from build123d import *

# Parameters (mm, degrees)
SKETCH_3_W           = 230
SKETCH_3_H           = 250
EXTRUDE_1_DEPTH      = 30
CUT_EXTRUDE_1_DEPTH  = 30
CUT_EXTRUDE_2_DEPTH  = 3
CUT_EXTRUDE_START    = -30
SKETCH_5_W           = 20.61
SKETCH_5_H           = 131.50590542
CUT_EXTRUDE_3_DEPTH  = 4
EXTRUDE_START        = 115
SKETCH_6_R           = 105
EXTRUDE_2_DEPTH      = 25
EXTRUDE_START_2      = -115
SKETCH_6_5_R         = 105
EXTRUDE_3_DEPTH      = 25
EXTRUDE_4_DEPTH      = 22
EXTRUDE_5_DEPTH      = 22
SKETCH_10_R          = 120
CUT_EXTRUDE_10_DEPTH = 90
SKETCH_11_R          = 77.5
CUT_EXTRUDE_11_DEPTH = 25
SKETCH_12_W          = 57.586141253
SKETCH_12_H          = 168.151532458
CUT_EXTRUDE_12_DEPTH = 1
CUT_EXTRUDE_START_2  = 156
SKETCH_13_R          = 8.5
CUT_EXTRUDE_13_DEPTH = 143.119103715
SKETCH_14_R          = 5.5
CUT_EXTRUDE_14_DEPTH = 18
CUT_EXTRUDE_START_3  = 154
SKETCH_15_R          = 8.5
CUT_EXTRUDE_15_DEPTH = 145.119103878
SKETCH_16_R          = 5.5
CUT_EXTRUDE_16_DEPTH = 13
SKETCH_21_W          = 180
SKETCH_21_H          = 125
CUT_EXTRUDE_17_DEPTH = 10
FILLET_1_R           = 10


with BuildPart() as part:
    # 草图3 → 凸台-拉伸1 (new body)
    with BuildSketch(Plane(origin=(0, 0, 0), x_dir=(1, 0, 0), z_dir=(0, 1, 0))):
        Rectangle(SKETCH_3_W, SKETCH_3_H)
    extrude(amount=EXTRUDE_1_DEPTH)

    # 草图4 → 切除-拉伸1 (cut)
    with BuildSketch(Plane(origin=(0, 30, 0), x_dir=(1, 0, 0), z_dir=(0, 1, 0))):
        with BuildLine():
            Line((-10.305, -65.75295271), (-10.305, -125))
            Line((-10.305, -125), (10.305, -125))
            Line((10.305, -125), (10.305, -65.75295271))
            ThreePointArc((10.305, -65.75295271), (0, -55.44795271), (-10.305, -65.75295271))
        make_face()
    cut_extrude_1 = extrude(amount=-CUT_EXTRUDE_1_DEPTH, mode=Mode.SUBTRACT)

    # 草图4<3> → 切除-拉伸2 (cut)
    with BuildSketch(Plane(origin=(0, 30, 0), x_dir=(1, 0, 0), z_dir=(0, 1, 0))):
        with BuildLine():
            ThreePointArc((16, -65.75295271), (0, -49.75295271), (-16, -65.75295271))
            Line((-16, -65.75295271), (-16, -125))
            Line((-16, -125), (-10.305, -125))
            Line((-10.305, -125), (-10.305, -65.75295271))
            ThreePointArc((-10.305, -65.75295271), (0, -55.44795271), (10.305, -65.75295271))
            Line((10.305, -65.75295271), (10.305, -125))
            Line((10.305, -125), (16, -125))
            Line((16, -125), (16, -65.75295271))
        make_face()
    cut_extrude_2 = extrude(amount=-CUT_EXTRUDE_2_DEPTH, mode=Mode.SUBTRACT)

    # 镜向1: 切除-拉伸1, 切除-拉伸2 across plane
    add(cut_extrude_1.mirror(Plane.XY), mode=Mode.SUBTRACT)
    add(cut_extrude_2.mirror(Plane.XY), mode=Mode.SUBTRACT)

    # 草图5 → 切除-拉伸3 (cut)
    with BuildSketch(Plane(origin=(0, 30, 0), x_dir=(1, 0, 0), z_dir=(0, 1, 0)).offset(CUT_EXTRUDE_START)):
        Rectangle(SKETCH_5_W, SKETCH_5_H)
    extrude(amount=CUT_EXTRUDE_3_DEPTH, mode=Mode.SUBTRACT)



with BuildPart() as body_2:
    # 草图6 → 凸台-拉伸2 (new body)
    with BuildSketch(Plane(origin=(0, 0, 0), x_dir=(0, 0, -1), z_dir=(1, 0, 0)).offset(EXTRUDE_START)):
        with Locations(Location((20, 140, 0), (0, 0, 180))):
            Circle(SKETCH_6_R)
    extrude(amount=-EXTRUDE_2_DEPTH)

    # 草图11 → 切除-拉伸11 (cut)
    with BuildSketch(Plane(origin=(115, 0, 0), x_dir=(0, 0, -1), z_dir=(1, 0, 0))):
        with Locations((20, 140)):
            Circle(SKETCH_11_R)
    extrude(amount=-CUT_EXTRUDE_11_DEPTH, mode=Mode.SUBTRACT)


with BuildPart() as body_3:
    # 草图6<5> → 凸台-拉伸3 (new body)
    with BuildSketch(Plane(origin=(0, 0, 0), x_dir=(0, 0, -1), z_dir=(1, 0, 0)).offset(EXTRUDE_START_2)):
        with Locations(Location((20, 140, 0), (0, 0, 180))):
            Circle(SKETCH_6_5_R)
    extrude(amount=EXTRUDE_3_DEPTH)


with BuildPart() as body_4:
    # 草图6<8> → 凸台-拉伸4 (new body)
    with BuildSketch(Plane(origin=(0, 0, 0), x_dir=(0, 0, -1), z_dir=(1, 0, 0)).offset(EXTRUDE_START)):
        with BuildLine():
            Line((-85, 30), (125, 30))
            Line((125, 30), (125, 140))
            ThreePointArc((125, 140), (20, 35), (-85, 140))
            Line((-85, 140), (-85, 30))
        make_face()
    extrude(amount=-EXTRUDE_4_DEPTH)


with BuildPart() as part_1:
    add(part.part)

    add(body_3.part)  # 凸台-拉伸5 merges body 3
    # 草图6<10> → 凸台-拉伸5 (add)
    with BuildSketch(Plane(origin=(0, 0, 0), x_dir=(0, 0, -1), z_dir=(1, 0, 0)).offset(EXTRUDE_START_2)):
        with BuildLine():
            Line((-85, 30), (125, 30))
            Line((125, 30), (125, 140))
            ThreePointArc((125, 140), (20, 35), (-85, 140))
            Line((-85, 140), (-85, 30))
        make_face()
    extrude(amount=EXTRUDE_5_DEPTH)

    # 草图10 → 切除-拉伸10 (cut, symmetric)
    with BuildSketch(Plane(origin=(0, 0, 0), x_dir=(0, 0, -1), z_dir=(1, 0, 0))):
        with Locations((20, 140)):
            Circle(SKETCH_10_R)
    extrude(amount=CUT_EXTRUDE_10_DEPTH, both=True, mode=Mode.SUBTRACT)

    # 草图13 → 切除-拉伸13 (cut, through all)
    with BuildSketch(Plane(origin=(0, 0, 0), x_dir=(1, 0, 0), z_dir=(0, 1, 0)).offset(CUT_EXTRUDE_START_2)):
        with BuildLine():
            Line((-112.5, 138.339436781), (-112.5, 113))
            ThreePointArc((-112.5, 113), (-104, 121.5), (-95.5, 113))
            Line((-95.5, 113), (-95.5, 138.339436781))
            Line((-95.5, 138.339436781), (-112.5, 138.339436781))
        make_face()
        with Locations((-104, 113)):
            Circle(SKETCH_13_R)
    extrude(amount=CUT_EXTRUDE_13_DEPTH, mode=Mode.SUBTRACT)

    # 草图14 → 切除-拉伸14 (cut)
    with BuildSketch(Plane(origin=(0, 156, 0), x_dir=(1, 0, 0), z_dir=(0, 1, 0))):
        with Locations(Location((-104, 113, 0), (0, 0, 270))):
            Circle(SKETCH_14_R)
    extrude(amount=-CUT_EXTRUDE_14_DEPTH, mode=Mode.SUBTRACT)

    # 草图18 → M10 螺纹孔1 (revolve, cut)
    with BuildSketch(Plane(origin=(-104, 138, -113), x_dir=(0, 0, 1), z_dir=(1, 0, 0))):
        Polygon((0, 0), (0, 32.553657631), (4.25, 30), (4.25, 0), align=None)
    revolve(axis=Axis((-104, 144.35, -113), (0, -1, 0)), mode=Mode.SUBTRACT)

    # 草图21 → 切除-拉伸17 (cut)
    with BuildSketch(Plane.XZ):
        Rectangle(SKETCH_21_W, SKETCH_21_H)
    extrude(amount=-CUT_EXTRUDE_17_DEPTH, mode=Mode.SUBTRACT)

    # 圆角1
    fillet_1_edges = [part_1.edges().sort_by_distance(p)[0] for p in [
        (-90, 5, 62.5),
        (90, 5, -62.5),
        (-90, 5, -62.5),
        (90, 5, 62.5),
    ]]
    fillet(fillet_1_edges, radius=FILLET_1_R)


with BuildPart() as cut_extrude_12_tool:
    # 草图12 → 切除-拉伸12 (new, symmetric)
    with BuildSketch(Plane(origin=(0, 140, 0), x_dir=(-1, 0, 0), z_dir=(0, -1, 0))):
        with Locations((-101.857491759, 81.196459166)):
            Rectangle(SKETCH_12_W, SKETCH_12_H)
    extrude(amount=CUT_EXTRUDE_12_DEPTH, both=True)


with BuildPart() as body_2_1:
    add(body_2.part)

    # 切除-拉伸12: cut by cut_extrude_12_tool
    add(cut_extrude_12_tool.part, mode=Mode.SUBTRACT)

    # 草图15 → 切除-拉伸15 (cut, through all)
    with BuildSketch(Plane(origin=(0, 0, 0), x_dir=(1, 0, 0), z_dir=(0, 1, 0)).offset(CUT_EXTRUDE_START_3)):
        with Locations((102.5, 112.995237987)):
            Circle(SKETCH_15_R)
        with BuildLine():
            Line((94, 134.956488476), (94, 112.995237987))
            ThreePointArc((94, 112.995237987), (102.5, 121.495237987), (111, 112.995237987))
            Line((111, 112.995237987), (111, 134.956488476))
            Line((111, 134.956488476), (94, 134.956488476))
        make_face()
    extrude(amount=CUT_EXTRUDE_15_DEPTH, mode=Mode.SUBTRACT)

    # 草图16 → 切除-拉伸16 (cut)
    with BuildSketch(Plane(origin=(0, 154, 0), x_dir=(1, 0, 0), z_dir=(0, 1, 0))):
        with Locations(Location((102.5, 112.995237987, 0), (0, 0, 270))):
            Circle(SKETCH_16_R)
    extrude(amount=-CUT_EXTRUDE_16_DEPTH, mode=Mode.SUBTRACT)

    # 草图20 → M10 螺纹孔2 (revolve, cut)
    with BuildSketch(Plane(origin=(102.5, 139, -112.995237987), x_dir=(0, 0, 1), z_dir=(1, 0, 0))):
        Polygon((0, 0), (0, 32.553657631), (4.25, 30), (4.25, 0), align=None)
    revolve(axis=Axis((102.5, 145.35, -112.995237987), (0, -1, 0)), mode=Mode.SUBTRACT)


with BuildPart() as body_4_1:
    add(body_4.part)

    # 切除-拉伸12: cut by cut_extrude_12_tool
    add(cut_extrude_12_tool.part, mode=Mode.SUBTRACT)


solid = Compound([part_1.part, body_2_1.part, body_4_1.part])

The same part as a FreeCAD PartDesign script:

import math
import FreeCAD as App
import Part
import Sketcher
Q = App.Units.Quantity


def edges_at(feature, points):
    """Names of the edges that pass closest to the given points."""
    edges = feature.Shape.Edges
    near = lambda p: min(range(len(edges)), key=lambda i: edges[i].distToShape(Part.Vertex(*p))[0])
    return sorted({f"Edge{near(p) + 1}" for p in points})

doc = App.newDocument("Part")
params = doc.addObject("Spreadsheet::Sheet", "Params")
for row, (alias, value) in enumerate([
    ("sketch1_width", "230 mm"),
    ("sketch1_height", "250 mm"),
    ("pad1_length", "30 mm"),
    ("pocket1_length", "30 mm"),
    ("sketch3_radius", "16 mm"),
    ("pocket2_length", "3 mm"),
    ("sketch4_width", "20.61 mm"),
    ("pocket3_length", "4 mm"),
    ("sketch5_diameter", "210 mm"),
    ("pad2_length", "25 mm"),
    ("sketch6_diameter", "155 mm"),
    ("pocket4_length", "25 mm"),
    ("sketch7_diameter", "210 mm"),
    ("pad3_length", "25 mm"),
    ("sketch8_radius", "105 mm"),
    ("sketch8_width", "110 mm"),
    ("pad4_length", "22 mm"),
    ("sketch9_radius", "105 mm"),
    ("sketch9_width", "110 mm"),
    ("pad5_length", "22 mm"),
    ("sketch10_diameter", "240 mm"),
    ("pocket5_length", "180 mm"),
    ("sketch11_radius", "8.5 mm"),
    ("sketch12_diameter", "11 mm"),
    ("pocket7_length", "18 mm"),
    ("sketch13_width", "30 mm"),
    ("sketch13_height", "4.25 mm"),
    ("groove_angle", "360 deg"),
    ("sketch14_width", "180 mm"),
    ("sketch14_height", "125 mm"),
    ("pocket8_length", "10 mm"),
    ("fillet_radius", "10 mm"),
    ("pad6_length", "2 mm"),
    ("sketch16_radius", "8.5 mm"),
    ("sketch17_diameter", "11 mm"),
    ("pocket10_length", "13 mm"),
    ("sketch18_width", "30 mm"),
    ("sketch18_height", "4.25 mm"),
    ("groove2_angle", "360 deg"),
], start=1):
    params.set(f"A{row}", alias)
    params.set(f"B{row}", "=" + value)
    params.setAlias(f"B{row}", alias)

body = doc.addObject("PartDesign::Body", "Body")

# Sketch on XZ plane
sketch1 = doc.addObject("Sketcher::SketchObject", "Sketch")
body.addObject(sketch1)
sketch1.AttachmentSupport = (doc.XZ_Plane, [""])
sketch1.MapMode = "FlatFace"
sketch1.addGeometry([
    Part.LineSegment(App.Vector(-115, -125, 0), App.Vector(-115, 125, 0)),
    Part.LineSegment(App.Vector(-115, 125, 0), App.Vector(115, 125, 0)),
    Part.LineSegment(App.Vector(115, 125, 0), App.Vector(115, -125, 0)),
    Part.LineSegment(App.Vector(115, -125, 0), App.Vector(-115, -125, 0)),
], False)
sketch1.addConstraint([
    Sketcher.Constraint("Coincident", 0, 2, 1, 1),
    Sketcher.Constraint("Coincident", 1, 2, 2, 1),
    Sketcher.Constraint("Coincident", 2, 2, 3, 1),
    Sketcher.Constraint("Coincident", 3, 2, 0, 1),
    Sketcher.Constraint("Vertical", 0),
    Sketcher.Constraint("Horizontal", 1),
    Sketcher.Constraint("Vertical", 2),
    Sketcher.Constraint("Horizontal", 3),
    Sketcher.Constraint("Symmetric", 0, 2, 2, 2, -1, 1),
    Sketcher.Constraint("DistanceX", 1, 1, 1, 2, 230.0),
    Sketcher.Constraint("DistanceY", 0, 1, 0, 2, 250.0),
])
sketch1.setExpression("Constraints[9]", "Params.sketch1_width")
sketch1.setExpression("Constraints[10]", "Params.sketch1_height")
pad1 = doc.addObject("PartDesign::Pad", "Pad")
body.addObject(pad1)
pad1.Profile = sketch1
pad1.setExpression("Length", "Params.pad1_length")
pad1.Reversed = True

# Sketch on XZ plane
sketch2 = doc.addObject("Sketcher::SketchObject", "Sketch001")
body.addObject(sketch2)
sketch2.AttachmentSupport = (doc.XZ_Plane, [""])
sketch2.MapMode = "FlatFace"
sketch2.AttachmentOffset = App.Placement(App.Vector(0, 0, -30), App.Rotation())
sketch2.addGeometry([
    Part.LineSegment(App.Vector(-10, 66, 0), App.Vector(-10, 125, 0)),
    Part.LineSegment(App.Vector(-10, 125, 0), App.Vector(10, 125, 0)),
    Part.LineSegment(App.Vector(10, 125, 0), App.Vector(10, 66, 0)),
    Part.ArcOfCircle(Part.Circle(App.Vector(0, 66, 0), App.Vector(0, 0, 1), 10), math.radians(180), math.radians(360)),
], False)
sketch2.addConstraint([
    Sketcher.Constraint("Coincident", 0, 2, 1, 1),
    Sketcher.Constraint("Coincident", 1, 2, 2, 1),
    Sketcher.Constraint("Tangent", 2, 2, 3, 2),
    Sketcher.Constraint("Tangent", 3, 1, 0, 1),
    Sketcher.Constraint("Vertical", 0),
    Sketcher.Constraint("Horizontal", 1),
    Sketcher.Constraint("Vertical", 2),
    Sketcher.Constraint("PointOnObject", 3, 3, -2),
    Sketcher.Constraint("DistanceY", -1, 1, 0, 2, 125.0),
    Sketcher.Constraint("Radius", 3, 10.305),
    Sketcher.Constraint("DistanceY", 0, 1, 0, 2, 59.247047),
])
pocket1 = doc.addObject("PartDesign::Pocket", "Pocket")
body.addObject(pocket1)
pocket1.Profile = sketch2
pocket1.setExpression("Length", "Params.pocket1_length")
pocket1.Reversed = True

# Sketch on XZ plane
sketch3 = doc.addObject("Sketcher::SketchObject", "Sketch002")
body.addObject(sketch3)
sketch3.AttachmentSupport = (doc.XZ_Plane, [""])
sketch3.MapMode = "FlatFace"
sketch3.AttachmentOffset = App.Placement(App.Vector(0, 0, -30), App.Rotation())
sketch3.addGeometry([
    Part.ArcOfCircle(Part.Circle(App.Vector(0, 66, 0), App.Vector(0, 0, 1), 16), math.radians(180), math.radians(360)),  # 0
    Part.LineSegment(App.Vector(-16, 66, 0), App.Vector(-16, 125, 0)),  # 1
    Part.LineSegment(App.Vector(-16, 125, 0), App.Vector(-10, 125, 0)),  # 2
    Part.LineSegment(App.Vector(-10, 125, 0), App.Vector(-10, 66, 0)),  # 3
    Part.ArcOfCircle(Part.Circle(App.Vector(0, 66, 0), App.Vector(0, 0, 1), 10), math.radians(180), math.radians(360)),  # 4
    Part.LineSegment(App.Vector(10, 66, 0), App.Vector(10, 125, 0)),  # 5
    Part.LineSegment(App.Vector(10, 125, 0), App.Vector(16, 125, 0)),  # 6
    Part.LineSegment(App.Vector(16, 125, 0), App.Vector(16, 66, 0)),  # 7
], False)
sketch3.addConstraint([
    Sketcher.Constraint("Tangent", 0, 1, 1, 1),
    Sketcher.Constraint("Coincident", 1, 2, 2, 1),
    Sketcher.Constraint("Coincident", 2, 2, 3, 1),
    Sketcher.Constraint("Tangent", 3, 2, 4, 1),
    Sketcher.Constraint("Tangent", 4, 2, 5, 1),
    Sketcher.Constraint("Coincident", 5, 2, 6, 1),
    Sketcher.Constraint("Coincident", 6, 2, 7, 1),
    Sketcher.Constraint("Tangent", 7, 2, 0, 2),
    Sketcher.Constraint("Vertical", 1),
    Sketcher.Constraint("Horizontal", 2),
    Sketcher.Constraint("Vertical", 3),
    Sketcher.Constraint("Vertical", 5),
    Sketcher.Constraint("Horizontal", 6),
    Sketcher.Constraint("Vertical", 7),
    Sketcher.Constraint("Coincident", 4, 3, 0, 3),
    Sketcher.Constraint("Symmetric", 2, 2, 5, 2, -2),
    Sketcher.Constraint("Radius", 0, 16.0),
    Sketcher.Constraint("DistanceY", -1, 1, 1, 2, 125.0),
    Sketcher.Constraint("Radius", 4, 10.305),
    Sketcher.Constraint("DistanceY", 1, 1, 1, 2, 59.247047),
])
sketch3.setExpression("Constraints[16]", "Params.sketch3_radius")
pocket2 = doc.addObject("PartDesign::Pocket", "Pocket001")
body.addObject(pocket2)
pocket2.Profile = sketch3
pocket2.setExpression("Length", "Params.pocket2_length")
pocket2.Reversed = True
doc.recompute()

mirrored = doc.addObject("PartDesign::Mirrored", "Mirrored")
body.addObject(mirrored)
mirrored.Originals = [pocket1, pocket2]
mirrored.MirrorPlane = (doc.XY_Plane, [""])
body.Tip = mirrored

# Sketch on XZ plane
sketch4 = doc.addObject("Sketcher::SketchObject", "Sketch003")
body.addObject(sketch4)
sketch4.AttachmentSupport = (doc.XZ_Plane, [""])
sketch4.MapMode = "FlatFace"
sketch4.addGeometry([
    Part.LineSegment(App.Vector(-10, -66, 0), App.Vector(-10, 66, 0)),
    Part.LineSegment(App.Vector(-10, 66, 0), App.Vector(10, 66, 0)),
    Part.LineSegment(App.Vector(10, 66, 0), App.Vector(10, -66, 0)),
    Part.LineSegment(App.Vector(10, -66, 0), App.Vector(-10, -66, 0)),
], False)
sketch4.addConstraint([
    Sketcher.Constraint("Coincident", 0, 2, 1, 1),
    Sketcher.Constraint("Coincident", 1, 2, 2, 1),
    Sketcher.Constraint("Coincident", 2, 2, 3, 1),
    Sketcher.Constraint("Coincident", 3, 2, 0, 1),
    Sketcher.Constraint("Vertical", 0),
    Sketcher.Constraint("Horizontal", 1),
    Sketcher.Constraint("Vertical", 2),
    Sketcher.Constraint("Horizontal", 3),
    Sketcher.Constraint("Symmetric", 0, 2, 2, 2, -1, 1),
    Sketcher.Constraint("DistanceX", 1, 1, 1, 2, 20.61),
    Sketcher.Constraint("DistanceY", 0, 1, 0, 2, 131.505905),
])
sketch4.setExpression("Constraints[9]", "Params.sketch4_width")
pocket3 = doc.addObject("PartDesign::Pocket", "Pocket002")
body.addObject(pocket3)
pocket3.Profile = sketch4
pocket3.setExpression("Length", "Params.pocket3_length")
body2 = doc.addObject("PartDesign::Body", "Body001")

# Sketch on YZ plane
sketch5 = doc.addObject("Sketcher::SketchObject", "Sketch004")
body2.addObject(sketch5)
sketch5.AttachmentSupport = (doc.getObject("YZ_Plane001"), [""])
sketch5.MapMode = "FlatFace"
sketch5.AttachmentOffset = App.Placement(App.Vector(0, 0, 115), App.Rotation())
sketch5.addGeometry(Part.Circle(App.Vector(140, -20, 0), App.Vector(0, 0, 1), 105), False)
sketch5.addConstraint([
    Sketcher.Constraint("Diameter", 0, 210.0),
    Sketcher.Constraint("DistanceX", -1, 1, 0, 3, 140.0),
    Sketcher.Constraint("DistanceY", 0, 3, -1, 1, 20.0),
])
sketch5.setExpression("Constraints[0]", "Params.sketch5_diameter")
pad2 = doc.addObject("PartDesign::Pad", "Pad001")
body2.addObject(pad2)
pad2.Profile = sketch5
pad2.setExpression("Length", "Params.pad2_length")
pad2.Reversed = True

# Sketch on YZ plane
sketch6 = doc.addObject("Sketcher::SketchObject", "Sketch005")
body2.addObject(sketch6)
sketch6.AttachmentSupport = (doc.getObject("YZ_Plane001"), [""])
sketch6.MapMode = "FlatFace"
sketch6.AttachmentOffset = App.Placement(App.Vector(0, 0, 115), App.Rotation())
sketch6.addGeometry(Part.Circle(App.Vector(140, -20, 0), App.Vector(0, 0, 1), 78), False)
sketch6.addConstraint([
    Sketcher.Constraint("Diameter", 0, 155.0),
    Sketcher.Constraint("DistanceX", -1, 1, 0, 3, 140.0),
    Sketcher.Constraint("DistanceY", 0, 3, -1, 1, 20.0),
])
sketch6.setExpression("Constraints[0]", "Params.sketch6_diameter")
pocket4 = doc.addObject("PartDesign::Pocket", "Pocket003")
body2.addObject(pocket4)
pocket4.Profile = sketch6
pocket4.setExpression("Length", "Params.pocket4_length")
body3 = doc.addObject("PartDesign::Body", "Body002")

# Sketch on YZ plane
sketch7 = doc.addObject("Sketcher::SketchObject", "Sketch006")
body3.addObject(sketch7)
sketch7.AttachmentSupport = (doc.getObject("YZ_Plane002"), [""])
sketch7.MapMode = "FlatFace"
sketch7.AttachmentOffset = App.Placement(App.Vector(0, 0, -115), App.Rotation())
sketch7.addGeometry(Part.Circle(App.Vector(140, -20, 0), App.Vector(0, 0, 1), 105), False)
sketch7.addConstraint([
    Sketcher.Constraint("Diameter", 0, 210.0),
    Sketcher.Constraint("DistanceX", -1, 1, 0, 3, 140.0),
    Sketcher.Constraint("DistanceY", 0, 3, -1, 1, 20.0),
])
sketch7.setExpression("Constraints[0]", "Params.sketch7_diameter")
pad3 = doc.addObject("PartDesign::Pad", "Pad002")
body3.addObject(pad3)
pad3.Profile = sketch7
pad3.setExpression("Length", "Params.pad3_length")
body4 = doc.addObject("PartDesign::Body", "Body003")

# Sketch on YZ plane
sketch8 = doc.addObject("Sketcher::SketchObject", "Sketch007")
body4.addObject(sketch8)
sketch8.AttachmentSupport = (doc.getObject("YZ_Plane003"), [""])
sketch8.MapMode = "FlatFace"
sketch8.AttachmentOffset = App.Placement(App.Vector(0, 0, 115), App.Rotation())
sketch8.addGeometry([
    Part.LineSegment(App.Vector(30, 85, 0), App.Vector(30, -125, 0)),
    Part.LineSegment(App.Vector(30, -125, 0), App.Vector(140, -125, 0)),
    Part.ArcOfCircle(Part.Circle(App.Vector(140, -20, 0), App.Vector(0, 0, 1), 105), math.radians(90), math.radians(270)),
    Part.LineSegment(App.Vector(140, 85, 0), App.Vector(30, 85, 0)),
], False)
sketch8.addConstraint([
    Sketcher.Constraint("Coincident", 0, 2, 1, 1),
    Sketcher.Constraint("Tangent", 1, 2, 2, 2),
    Sketcher.Constraint("Tangent", 2, 1, 3, 1),
    Sketcher.Constraint("Coincident", 3, 2, 0, 1),
    Sketcher.Constraint("Vertical", 0),
    Sketcher.Constraint("Horizontal", 1),
    Sketcher.Constraint("Horizontal", 3),
    Sketcher.Constraint("Radius", 2, 105.0),
    Sketcher.Constraint("DistanceX", 1, 1, 1, 2, 110.0),
    Sketcher.Constraint("DistanceX", -1, 1, 2, 3, 140.0),
    Sketcher.Constraint("DistanceY", 2, 3, -1, 1, 20.0),
])
sketch8.setExpression("Constraints[7]", "Params.sketch8_radius")
sketch8.setExpression("Constraints[8]", "Params.sketch8_width")
pad4 = doc.addObject("PartDesign::Pad", "Pad003")
body4.addObject(pad4)
pad4.Profile = sketch8
pad4.setExpression("Length", "Params.pad4_length")
pad4.Reversed = True
body.AllowCompound = True
doc.recompute()

boolean = doc.addObject("PartDesign::Boolean", "Boolean")
body.addObject(boolean)
boolean.Type = "Fuse"
boolean.addObjects([body3])

# Sketch on YZ plane
sketch9 = doc.addObject("Sketcher::SketchObject", "Sketch008")
body.addObject(sketch9)
sketch9.AttachmentSupport = (doc.YZ_Plane, [""])
sketch9.MapMode = "FlatFace"
sketch9.AttachmentOffset = App.Placement(App.Vector(0, 0, -115), App.Rotation())
sketch9.addGeometry([
    Part.LineSegment(App.Vector(30, 85, 0), App.Vector(30, -125, 0)),
    Part.LineSegment(App.Vector(30, -125, 0), App.Vector(140, -125, 0)),
    Part.ArcOfCircle(Part.Circle(App.Vector(140, -20, 0), App.Vector(0, 0, 1), 105), math.radians(90), math.radians(270)),
    Part.LineSegment(App.Vector(140, 85, 0), App.Vector(30, 85, 0)),
], False)
sketch9.addConstraint([
    Sketcher.Constraint("Coincident", 0, 2, 1, 1),
    Sketcher.Constraint("Tangent", 1, 2, 2, 2),
    Sketcher.Constraint("Tangent", 2, 1, 3, 1),
    Sketcher.Constraint("Coincident", 3, 2, 0, 1),
    Sketcher.Constraint("Vertical", 0),
    Sketcher.Constraint("Horizontal", 1),
    Sketcher.Constraint("Horizontal", 3),
    Sketcher.Constraint("Radius", 2, 105.0),
    Sketcher.Constraint("DistanceX", 1, 1, 1, 2, 110.0),
    Sketcher.Constraint("DistanceX", -1, 1, 2, 3, 140.0),
    Sketcher.Constraint("DistanceY", 2, 3, -1, 1, 20.0),
])
sketch9.setExpression("Constraints[7]", "Params.sketch9_radius")
sketch9.setExpression("Constraints[8]", "Params.sketch9_width")
pad5 = doc.addObject("PartDesign::Pad", "Pad004")
body.addObject(pad5)
pad5.Profile = sketch9
pad5.setExpression("Length", "Params.pad5_length")

# Sketch on YZ plane
sketch10 = doc.addObject("Sketcher::SketchObject", "Sketch009")
body.addObject(sketch10)
sketch10.AttachmentSupport = (doc.YZ_Plane, [""])
sketch10.MapMode = "FlatFace"
sketch10.addGeometry(Part.Circle(App.Vector(140, -20, 0), App.Vector(0, 0, 1), 120), False)
sketch10.addConstraint([
    Sketcher.Constraint("Diameter", 0, 240.0),
    Sketcher.Constraint("DistanceX", -1, 1, 0, 3, 140.0),
    Sketcher.Constraint("DistanceY", 0, 3, -1, 1, 20.0),
])
sketch10.setExpression("Constraints[0]", "Params.sketch10_diameter")
pocket5 = doc.addObject("PartDesign::Pocket", "Pocket004")
body.addObject(pocket5)
pocket5.Profile = sketch10
pocket5.setExpression("Length", "Params.pocket5_length")
pocket5.Midplane = True

# Sketch on XZ plane
sketch11 = doc.addObject("Sketcher::SketchObject", "Sketch010")
body.addObject(sketch11)
sketch11.AttachmentSupport = (doc.XZ_Plane, [""])
sketch11.MapMode = "FlatFace"
sketch11.AttachmentOffset = App.Placement(App.Vector(0, 0, -156), App.Rotation())
sketch11.addGeometry([
    Part.LineSegment(App.Vector(-112, -138, 0), App.Vector(-112, -113, 0)),
    Part.ArcOfCircle(Part.Circle(App.Vector(-104, -113, 0), App.Vector(0, 0, 1), 8), math.radians(0), math.radians(180)),
    Part.LineSegment(App.Vector(-96, -113, 0), App.Vector(-96, -138, 0)),
    Part.LineSegment(App.Vector(-96, -138, 0), App.Vector(-112, -138, 0)),
], False)
sketch11.addConstraint([
    Sketcher.Constraint("Tangent", 0, 2, 1, 2),
    Sketcher.Constraint("Tangent", 1, 1, 2, 1),
    Sketcher.Constraint("Coincident", 2, 2, 3, 1),
    Sketcher.Constraint("Coincident", 3, 2, 0, 1),
    Sketcher.Constraint("Vertical", 0),
    Sketcher.Constraint("Vertical", 2),
    Sketcher.Constraint("Horizontal", 3),
    Sketcher.Constraint("Radius", 1, 8.5),
    Sketcher.Constraint("DistanceX", 1, 3, -1, 1, 104.0),
    Sketcher.Constraint("DistanceY", 1, 3, -1, 1, 113.0),
    Sketcher.Constraint("DistanceY", 0, 1, 0, 2, 25.339437),
])
sketch11.setExpression("Constraints[7]", "Params.sketch11_radius")
pocket6 = doc.addObject("PartDesign::Pocket", "Pocket005")
body.addObject(pocket6)
pocket6.Profile = sketch11
pocket6.Type = "ThroughAll"

# Sketch on XZ plane
sketch12 = doc.addObject("Sketcher::SketchObject", "Sketch011")
body.addObject(sketch12)
sketch12.AttachmentSupport = (doc.XZ_Plane, [""])
sketch12.MapMode = "FlatFace"
sketch12.AttachmentOffset = App.Placement(App.Vector(0, 0, -156), App.Rotation())
sketch12.addGeometry(Part.Circle(App.Vector(-104, -113, 0), App.Vector(0, 0, 1), 6), False)
sketch12.addConstraint([
    Sketcher.Constraint("Diameter", 0, 11.0),
    Sketcher.Constraint("DistanceX", 0, 3, -1, 1, 104.0),
    Sketcher.Constraint("DistanceY", 0, 3, -1, 1, 113.0),
])
sketch12.setExpression("Constraints[0]", "Params.sketch12_diameter")
pocket7 = doc.addObject("PartDesign::Pocket", "Pocket006")
body.addObject(pocket7)
pocket7.Profile = sketch12
pocket7.setExpression("Length", "Params.pocket7_length")
pocket7.Reversed = True

# Sketch on YZ plane
sketch13 = doc.addObject("Sketcher::SketchObject", "Sketch012")
body.addObject(sketch13)
sketch13.AttachmentSupport = (doc.YZ_Plane, [""])
sketch13.MapMode = "FlatFace"
sketch13.AttachmentOffset = App.Placement(App.Vector(0, 0, -104), App.Rotation())
sketch13.addGeometry([
    Part.LineSegment(App.Vector(105.4, -113, 0), App.Vector(138, -113, 0)),
    Part.LineSegment(App.Vector(138, -113, 0), App.Vector(138, -108.8, 0)),
    Part.LineSegment(App.Vector(138, -108.8, 0), App.Vector(108, -108.8, 0)),
    Part.LineSegment(App.Vector(108, -108.8, 0), App.Vector(105.4, -113, 0)),
], False)
sketch13.addGeometry(Part.LineSegment(App.Vector(138, -113, 0), App.Vector(105.4, -113, 0)), True)  # axis
sketch13.addConstraint([
    Sketcher.Constraint("Coincident", 0, 2, 1, 1),
    Sketcher.Constraint("Coincident", 1, 2, 2, 1),
    Sketcher.Constraint("Coincident", 2, 2, 3, 1),
    Sketcher.Constraint("Coincident", 3, 2, 0, 1),
    Sketcher.Constraint("Horizontal", 0),
    Sketcher.Constraint("Vertical", 1),
    Sketcher.Constraint("Horizontal", 2),
    Sketcher.Constraint("Horizontal", 4),
    Sketcher.Constraint("Coincident", 4, 1, 0, 2),
    Sketcher.Constraint("Equal", 0, 4),
    Sketcher.Constraint("DistanceX", 2, 2, 2, 1, 30.0),
    Sketcher.Constraint("Angle", 3, Q("-121 deg")),
    Sketcher.Constraint("DistanceX", -1, 1, 0, 2, 138.0),
    Sketcher.Constraint("DistanceY", 0, 2, -1, 1, 113.0),
    Sketcher.Constraint("DistanceY", 1, 1, 1, 2, 4.25),
])
sketch13.setExpression("Constraints[10]", "Params.sketch13_width")
sketch13.setExpression("Constraints[14]", "Params.sketch13_height")
groove = doc.addObject("PartDesign::Groove", "Groove")
body.addObject(groove)
groove.Profile = sketch13
groove.ReferenceAxis = (sketch13, ["Axis0"])
groove.setExpression("Angle", "Params.groove_angle")

# Sketch on XZ plane
sketch14 = doc.addObject("Sketcher::SketchObject", "Sketch013")
body.addObject(sketch14)
sketch14.AttachmentSupport = (doc.XZ_Plane, [""])
sketch14.MapMode = "FlatFace"
sketch14.addGeometry([
    Part.LineSegment(App.Vector(-90, 62, 0), App.Vector(-90, -62, 0)),
    Part.LineSegment(App.Vector(-90, -62, 0), App.Vector(90, -62, 0)),
    Part.LineSegment(App.Vector(90, -62, 0), App.Vector(90, 62, 0)),
    Part.LineSegment(App.Vector(90, 62, 0), App.Vector(-90, 62, 0)),
], False)
sketch14.addConstraint([
    Sketcher.Constraint("Coincident", 0, 2, 1, 1),
    Sketcher.Constraint("Coincident", 1, 2, 2, 1),
    Sketcher.Constraint("Coincident", 2, 2, 3, 1),
    Sketcher.Constraint("Coincident", 3, 2, 0, 1),
    Sketcher.Constraint("Vertical", 0),
    Sketcher.Constraint("Horizontal", 1),
    Sketcher.Constraint("Vertical", 2),
    Sketcher.Constraint("Horizontal", 3),
    Sketcher.Constraint("Symmetric", 0, 2, 2, 2, -1, 1),
    Sketcher.Constraint("DistanceX", 1, 1, 1, 2, 180.0),
    Sketcher.Constraint("DistanceY", 0, 2, 0, 1, 125.0),
])
sketch14.setExpression("Constraints[9]", "Params.sketch14_width")
sketch14.setExpression("Constraints[10]", "Params.sketch14_height")
pocket8 = doc.addObject("PartDesign::Pocket", "Pocket007")
body.addObject(pocket8)
pocket8.Profile = sketch14
pocket8.setExpression("Length", "Params.pocket8_length")
doc.recompute()

fillet = doc.addObject("PartDesign::Fillet", "Fillet")
body.addObject(fillet)
fillet.Base = (pocket8, edges_at(pocket8, [
    (-90, 5, 62.5),
    (90, 5, -62.5),
    (-90, 5, -62.5),
    (90, 5, 62.5),
]))
fillet.setExpression("Radius", "Params.fillet_radius")
body5 = doc.addObject("PartDesign::Body", "Body004")

# Sketch on XZ plane
sketch15 = doc.addObject("Sketcher::SketchObject", "Sketch014")
body5.addObject(sketch15)
sketch15.AttachmentSupport = (doc.getObject("XZ_Plane004"), [""])
sketch15.MapMode = "FlatFace"
sketch15.AttachmentOffset = App.Placement(App.Vector(0, 0, -140), App.Rotation())
sketch15.addGeometry([
    Part.LineSegment(App.Vector(131, -165, 0), App.Vector(131, 3, 0)),
    Part.LineSegment(App.Vector(131, 3, 0), App.Vector(73, 3, 0)),
    Part.LineSegment(App.Vector(73, 3, 0), App.Vector(73, -165, 0)),
    Part.LineSegment(App.Vector(73, -165, 0), App.Vector(131, -165, 0)),
], False)
sketch15.addConstraint([
    Sketcher.Constraint("Coincident", 0, 2, 1, 1),
    Sketcher.Constraint("Coincident", 1, 2, 2, 1),
    Sketcher.Constraint("Coincident", 2, 2, 3, 1),
    Sketcher.Constraint("Coincident", 3, 2, 0, 1),
    Sketcher.Constraint("Vertical", 0),
    Sketcher.Constraint("Horizontal", 1),
    Sketcher.Constraint("Vertical", 2),
    Sketcher.Constraint("Horizontal", 3),
    Sketcher.Constraint("DistanceX", 1, 2, 1, 1, 57.586141),
    Sketcher.Constraint("DistanceY", 0, 1, 0, 2, 168.151532),
    Sketcher.Constraint("DistanceX", -1, 1, 1, 2, 73.064421),
    Sketcher.Constraint("DistanceY", -1, 1, 0, 2, 2.879307),
])
pad6 = doc.addObject("PartDesign::Pad", "Pad005")
body5.addObject(pad6)
pad6.Profile = sketch15
pad6.setExpression("Length", "Params.pad6_length")
pad6.Midplane = True
doc.recompute()

body6 = doc.addObject("PartDesign::Body", "Body005")
body6.BaseFeature = body5
boolean2 = doc.addObject("PartDesign::Boolean", "Boolean001")
body2.addObject(boolean2)
boolean2.Type = "Cut"
boolean2.addObjects([body6])
doc.recompute()

# Sketch on XZ plane
sketch16 = doc.addObject("Sketcher::SketchObject", "Sketch015")
body2.addObject(sketch16)
sketch16.AttachmentSupport = (doc.getObject("XZ_Plane001"), [""])
sketch16.MapMode = "FlatFace"
sketch16.AttachmentOffset = App.Placement(App.Vector(0, 0, -154), App.Rotation())
sketch16.addGeometry([
    Part.ArcOfCircle(Part.Circle(App.Vector(102, -113, 0), App.Vector(0, 0, 1), 8), math.radians(0), math.radians(180)),
    Part.LineSegment(App.Vector(111, -113, 0), App.Vector(111, -135, 0)),
    Part.LineSegment(App.Vector(111, -135, 0), App.Vector(94, -135, 0)),
    Part.LineSegment(App.Vector(94, -135, 0), App.Vector(94, -113, 0)),
], False)
sketch16.addConstraint([
    Sketcher.Constraint("Tangent", 0, 1, 1, 1),
    Sketcher.Constraint("Coincident", 1, 2, 2, 1),
    Sketcher.Constraint("Coincident", 2, 2, 3, 1),
    Sketcher.Constraint("Tangent", 3, 2, 0, 2),
    Sketcher.Constraint("Vertical", 1),
    Sketcher.Constraint("Horizontal", 2),
    Sketcher.Constraint("Vertical", 3),
    Sketcher.Constraint("Radius", 0, 8.5),
    Sketcher.Constraint("DistanceX", -1, 1, 0, 1, 111.0),
    Sketcher.Constraint("DistanceY", 1, 2, 1, 1, 21.96125),
    Sketcher.Constraint("DistanceY", 1, 2, -1, 1, 134.956488),
])
sketch16.setExpression("Constraints[7]", "Params.sketch16_radius")
pocket9 = doc.addObject("PartDesign::Pocket", "Pocket008")
body2.addObject(pocket9)
pocket9.Profile = sketch16
pocket9.Type = "ThroughAll"

# Sketch on XZ plane
sketch17 = doc.addObject("Sketcher::SketchObject", "Sketch016")
body2.addObject(sketch17)
sketch17.AttachmentSupport = (doc.getObject("XZ_Plane001"), [""])
sketch17.MapMode = "FlatFace"
sketch17.AttachmentOffset = App.Placement(App.Vector(0, 0, -154), App.Rotation())
sketch17.addGeometry(Part.Circle(App.Vector(102, -113, 0), App.Vector(0, 0, 1), 6), False)
sketch17.addConstraint([
    Sketcher.Constraint("Diameter", 0, 11.0),
    Sketcher.Constraint("DistanceX", -1, 1, 0, 3, 102.5),
    Sketcher.Constraint("DistanceY", 0, 3, -1, 1, 112.995238),
])
sketch17.setExpression("Constraints[0]", "Params.sketch17_diameter")
pocket10 = doc.addObject("PartDesign::Pocket", "Pocket009")
body2.addObject(pocket10)
pocket10.Profile = sketch17
pocket10.setExpression("Length", "Params.pocket10_length")
pocket10.Reversed = True

# Sketch on YZ plane
sketch18 = doc.addObject("Sketcher::SketchObject", "Sketch017")
body2.addObject(sketch18)
sketch18.AttachmentSupport = (doc.getObject("YZ_Plane001"), [""])
sketch18.MapMode = "FlatFace"
sketch18.AttachmentOffset = App.Placement(App.Vector(0, 0, 102.5), App.Rotation())
sketch18.addGeometry([
    Part.LineSegment(App.Vector(106.4, -113, 0), App.Vector(139, -113, 0)),
    Part.LineSegment(App.Vector(139, -113, 0), App.Vector(139, -108.7, 0)),
    Part.LineSegment(App.Vector(139, -108.7, 0), App.Vector(109, -108.7, 0)),
    Part.LineSegment(App.Vector(109, -108.7, 0), App.Vector(106.4, -113, 0)),
], False)
sketch18.addGeometry(Part.LineSegment(App.Vector(139, -113, 0), App.Vector(106.4, -113, 0)), True)  # axis
sketch18.addConstraint([
    Sketcher.Constraint("Coincident", 0, 2, 1, 1),
    Sketcher.Constraint("Coincident", 1, 2, 2, 1),
    Sketcher.Constraint("Coincident", 2, 2, 3, 1),
    Sketcher.Constraint("Coincident", 3, 2, 0, 1),
    Sketcher.Constraint("Horizontal", 0),
    Sketcher.Constraint("Vertical", 1),
    Sketcher.Constraint("Horizontal", 2),
    Sketcher.Constraint("Horizontal", 4),
    Sketcher.Constraint("Coincident", 4, 1, 0, 2),
    Sketcher.Constraint("Equal", 0, 4),
    Sketcher.Constraint("DistanceX", 2, 2, 2, 1, 30.0),
    Sketcher.Constraint("Angle", 3, Q("-121 deg")),
    Sketcher.Constraint("DistanceX", -1, 1, 0, 2, 139.0),
    Sketcher.Constraint("DistanceY", 1, 1, 1, 2, 4.25),
    Sketcher.Constraint("DistanceY", 0, 2, -1, 1, 112.995238),
])
sketch18.setExpression("Constraints[10]", "Params.sketch18_width")
sketch18.setExpression("Constraints[13]", "Params.sketch18_height")
groove2 = doc.addObject("PartDesign::Groove", "Groove001")
body2.addObject(groove2)
groove2.Profile = sketch18
groove2.ReferenceAxis = (sketch18, ["Axis0"])
groove2.setExpression("Angle", "Params.groove2_angle")
doc.recompute()

boolean3 = doc.addObject("PartDesign::Boolean", "Boolean002")
body4.addObject(boolean3)
boolean3.Type = "Cut"
boolean3.addObjects([body5])

doc.recompute()
